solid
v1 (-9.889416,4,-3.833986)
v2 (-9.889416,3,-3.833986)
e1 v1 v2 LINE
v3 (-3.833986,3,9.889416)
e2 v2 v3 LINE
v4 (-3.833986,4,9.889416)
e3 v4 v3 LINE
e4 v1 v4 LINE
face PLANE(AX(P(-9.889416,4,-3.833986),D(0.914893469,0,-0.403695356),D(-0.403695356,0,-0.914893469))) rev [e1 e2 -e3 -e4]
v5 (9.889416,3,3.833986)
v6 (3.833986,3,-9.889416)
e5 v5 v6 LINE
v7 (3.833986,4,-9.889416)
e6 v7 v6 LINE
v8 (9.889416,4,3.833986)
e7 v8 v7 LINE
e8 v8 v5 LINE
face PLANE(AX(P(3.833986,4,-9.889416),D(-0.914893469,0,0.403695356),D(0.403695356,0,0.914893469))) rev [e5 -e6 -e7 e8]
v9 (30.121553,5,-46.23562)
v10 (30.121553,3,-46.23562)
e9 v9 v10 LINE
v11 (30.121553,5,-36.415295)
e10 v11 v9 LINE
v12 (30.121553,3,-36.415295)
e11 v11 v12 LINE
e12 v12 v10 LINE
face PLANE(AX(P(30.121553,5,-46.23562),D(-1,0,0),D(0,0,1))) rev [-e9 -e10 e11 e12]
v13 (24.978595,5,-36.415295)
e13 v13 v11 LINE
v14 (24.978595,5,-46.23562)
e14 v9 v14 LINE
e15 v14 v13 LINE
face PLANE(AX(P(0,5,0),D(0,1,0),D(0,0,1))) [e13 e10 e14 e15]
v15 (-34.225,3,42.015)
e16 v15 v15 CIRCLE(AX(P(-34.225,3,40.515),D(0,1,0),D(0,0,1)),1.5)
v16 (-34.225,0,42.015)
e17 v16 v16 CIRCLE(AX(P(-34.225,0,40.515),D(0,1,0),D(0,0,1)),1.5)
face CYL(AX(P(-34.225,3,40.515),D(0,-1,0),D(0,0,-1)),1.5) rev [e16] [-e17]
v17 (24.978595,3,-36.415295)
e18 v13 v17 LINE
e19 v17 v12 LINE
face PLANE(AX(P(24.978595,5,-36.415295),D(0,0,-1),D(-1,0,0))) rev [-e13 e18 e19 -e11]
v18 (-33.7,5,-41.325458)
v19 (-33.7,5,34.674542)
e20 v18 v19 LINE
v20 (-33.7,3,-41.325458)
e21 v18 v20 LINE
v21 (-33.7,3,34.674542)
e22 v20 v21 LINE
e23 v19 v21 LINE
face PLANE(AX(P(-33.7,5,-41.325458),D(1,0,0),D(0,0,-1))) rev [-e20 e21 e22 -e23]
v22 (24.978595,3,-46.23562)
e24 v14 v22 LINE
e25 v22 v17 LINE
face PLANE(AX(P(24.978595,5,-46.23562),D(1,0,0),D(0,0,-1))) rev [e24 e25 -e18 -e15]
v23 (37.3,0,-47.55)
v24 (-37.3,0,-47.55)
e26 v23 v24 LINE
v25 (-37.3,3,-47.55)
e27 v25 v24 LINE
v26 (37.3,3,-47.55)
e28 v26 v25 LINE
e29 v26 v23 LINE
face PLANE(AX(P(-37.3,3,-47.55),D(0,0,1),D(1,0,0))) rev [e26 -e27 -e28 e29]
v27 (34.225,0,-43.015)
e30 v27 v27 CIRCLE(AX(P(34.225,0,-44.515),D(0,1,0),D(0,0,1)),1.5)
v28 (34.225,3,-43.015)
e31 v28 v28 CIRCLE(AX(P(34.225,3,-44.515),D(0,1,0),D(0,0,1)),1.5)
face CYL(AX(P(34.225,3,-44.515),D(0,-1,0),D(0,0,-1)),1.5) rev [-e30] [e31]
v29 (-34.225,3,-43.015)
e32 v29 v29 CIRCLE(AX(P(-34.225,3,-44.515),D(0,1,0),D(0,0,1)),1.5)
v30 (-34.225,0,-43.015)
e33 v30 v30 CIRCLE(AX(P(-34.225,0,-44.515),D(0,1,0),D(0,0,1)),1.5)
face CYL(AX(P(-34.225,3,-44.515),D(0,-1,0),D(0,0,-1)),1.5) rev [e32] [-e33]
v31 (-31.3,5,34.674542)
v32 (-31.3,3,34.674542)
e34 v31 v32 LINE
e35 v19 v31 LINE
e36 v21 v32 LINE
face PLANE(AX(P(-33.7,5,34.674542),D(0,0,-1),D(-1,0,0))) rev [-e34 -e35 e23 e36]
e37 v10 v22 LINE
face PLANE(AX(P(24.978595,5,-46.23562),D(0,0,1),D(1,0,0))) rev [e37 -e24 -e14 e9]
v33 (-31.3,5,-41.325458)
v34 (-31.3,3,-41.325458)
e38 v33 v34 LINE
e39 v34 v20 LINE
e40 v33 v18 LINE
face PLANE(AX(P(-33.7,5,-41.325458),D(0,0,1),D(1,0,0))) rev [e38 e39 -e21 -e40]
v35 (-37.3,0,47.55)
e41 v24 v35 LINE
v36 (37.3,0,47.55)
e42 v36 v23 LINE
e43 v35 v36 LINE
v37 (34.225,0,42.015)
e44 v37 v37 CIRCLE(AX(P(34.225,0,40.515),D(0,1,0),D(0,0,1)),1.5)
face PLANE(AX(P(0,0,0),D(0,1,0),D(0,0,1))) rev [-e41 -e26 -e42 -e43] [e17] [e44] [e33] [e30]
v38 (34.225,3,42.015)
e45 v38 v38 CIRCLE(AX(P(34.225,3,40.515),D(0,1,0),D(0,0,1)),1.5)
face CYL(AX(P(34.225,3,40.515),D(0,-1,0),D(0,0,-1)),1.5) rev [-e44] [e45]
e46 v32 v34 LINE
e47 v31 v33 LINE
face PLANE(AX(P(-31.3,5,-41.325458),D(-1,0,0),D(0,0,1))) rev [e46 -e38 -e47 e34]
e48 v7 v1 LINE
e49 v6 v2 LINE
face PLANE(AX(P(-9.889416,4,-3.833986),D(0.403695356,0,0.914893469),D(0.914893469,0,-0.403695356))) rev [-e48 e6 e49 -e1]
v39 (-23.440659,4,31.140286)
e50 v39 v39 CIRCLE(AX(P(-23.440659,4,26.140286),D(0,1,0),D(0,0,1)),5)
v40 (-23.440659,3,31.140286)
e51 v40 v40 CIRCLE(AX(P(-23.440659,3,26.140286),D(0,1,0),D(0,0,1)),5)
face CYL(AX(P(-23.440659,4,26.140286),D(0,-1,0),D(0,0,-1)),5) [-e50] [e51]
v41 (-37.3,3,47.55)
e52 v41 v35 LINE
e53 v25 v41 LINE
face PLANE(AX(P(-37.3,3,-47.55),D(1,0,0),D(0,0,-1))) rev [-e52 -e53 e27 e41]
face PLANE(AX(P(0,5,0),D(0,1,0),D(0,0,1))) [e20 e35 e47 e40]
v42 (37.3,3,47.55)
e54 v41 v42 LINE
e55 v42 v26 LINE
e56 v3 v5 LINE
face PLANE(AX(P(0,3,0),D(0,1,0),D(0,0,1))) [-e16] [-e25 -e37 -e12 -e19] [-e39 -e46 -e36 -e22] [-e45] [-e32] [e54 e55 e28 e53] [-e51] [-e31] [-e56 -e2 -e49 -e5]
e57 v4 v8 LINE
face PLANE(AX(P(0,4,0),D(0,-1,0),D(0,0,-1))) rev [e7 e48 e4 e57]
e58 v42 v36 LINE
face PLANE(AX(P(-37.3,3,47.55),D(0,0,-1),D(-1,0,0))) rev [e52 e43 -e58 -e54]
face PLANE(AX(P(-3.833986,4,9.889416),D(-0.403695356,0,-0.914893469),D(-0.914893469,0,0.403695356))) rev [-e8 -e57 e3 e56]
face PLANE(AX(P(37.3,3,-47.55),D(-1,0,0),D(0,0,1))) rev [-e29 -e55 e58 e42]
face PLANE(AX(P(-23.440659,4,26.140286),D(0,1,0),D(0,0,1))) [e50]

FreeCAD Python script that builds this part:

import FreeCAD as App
import Part
import Sketcher

V = App.Vector

doc = App.newDocument("Part")
body = doc.addObject("PartDesign::Body", "Body")

sketch1 = doc.addObject("Sketcher::SketchObject", "Sketch")
body.addObject(sketch1)
sketch1.AttachmentSupport = (doc.XZ_Plane, [""])
sketch1.MapMode = "FlatFace"
sketch1.addGeometry(Part.LineSegment(V(-37.3, -47.55, 0), V(-37.3, 47.55, 0)), False)
sketch1.addGeometry(Part.LineSegment(V(-37.3, 47.55, 0), V(37.3, 47.55, 0)), False)
sketch1.addGeometry(Part.LineSegment(V(37.3, 47.55, 0), V(37.3, -47.55, 0)), False)
sketch1.addGeometry(Part.LineSegment(V(37.3, -47.55, 0), V(-37.3, -47.55, 0)), False)
sketch1.addGeometry(Part.Circle(V(-34.225, 40.515, 0), V(0, 0, 1), 1.5), False)
sketch1.addGeometry(Part.Circle(V(34.225, 40.515, 0), V(0, 0, 1), 1.5), False)
sketch1.addGeometry(Part.Circle(V(-34.225, -44.515, 0), V(0, 0, 1), 1.5), False)
sketch1.addGeometry(Part.Circle(V(34.225, -44.515, 0), V(0, 0, 1), 1.5), False)
sketch1.addConstraint(Sketcher.Constraint("Coincident", 0, 2, 1, 1))
sketch1.addConstraint(Sketcher.Constraint("Coincident", 1, 2, 2, 1))
sketch1.addConstraint(Sketcher.Constraint("Coincident", 2, 2, 3, 1))
sketch1.addConstraint(Sketcher.Constraint("Coincident", 3, 2, 0, 1))
sketch1.addConstraint(Sketcher.Constraint("Vertical", 0))
sketch1.addConstraint(Sketcher.Constraint("Horizontal", 1))
sketch1.addConstraint(Sketcher.Constraint("Vertical", 2))
sketch1.addConstraint(Sketcher.Constraint("Horizontal", 3))
sketch1.addConstraint(Sketcher.Constraint("Equal", 4, 5))
sketch1.addConstraint(Sketcher.Constraint("Equal", 5, 6))
sketch1.addConstraint(Sketcher.Constraint("Equal", 6, 7))
sketch1.addConstraint(Sketcher.Constraint("Symmetric", 0, 2, 2, 2, -1, 1))
sketch1.addConstraint(Sketcher.Constraint("Symmetric", 4, 3, 5, 3, -2))
sketch1.addConstraint(Sketcher.Constraint("Symmetric", 6, 3, 7, 3, -2))
sketch1.addConstraint(Sketcher.Constraint("Vertical", 4, 3, 6, 3))
sketch1.addConstraint(Sketcher.Constraint("Diameter", 4, 3.0))
sketch1.addConstraint(Sketcher.Constraint("DistanceX", 1, 1, 1, 2, 74.6))
sketch1.addConstraint(Sketcher.Constraint("DistanceY", 0, 1, 0, 2, 95.1))
sketch1.addConstraint(Sketcher.Constraint("DistanceX", 4, 3, 5, 3, 68.45))
sketch1.addConstraint(Sketcher.Constraint("DistanceY", 6, 3, 4, 3, 85.03))
sketch1.addConstraint(Sketcher.Constraint("DistanceY", -1, 1, 4, 3, 40.515))
pad1 = doc.addObject("PartDesign::Pad", "Pad")
body.addObject(pad1)
pad1.Profile = sketch1
pad1.Length = 3
pad1.Reversed = True

sketch2 = doc.addObject("Sketcher::SketchObject", "Sketch001")
body.addObject(sketch2)
sketch2.AttachmentSupport = (doc.XZ_Plane, [""])
sketch2.MapMode = "FlatFace"
sketch2.AttachmentOffset = App.Placement(V(0, 0, -3), App.Rotation())
sketch2.addGeometry(Part.LineSegment(V(-9.889416, -3.833986, 0), V(-3.833986, 9.889416, 0)), False)
sketch2.addGeometry(Part.LineSegment(V(-3.833986, 9.889416, 0), V(9.889416, 3.833986, 0)), False)
sketch2.addGeometry(Part.LineSegment(V(9.889416, 3.833986, 0), V(3.833986, -9.889416, 0)), False)
sketch2.addGeometry(Part.LineSegment(V(3.833986, -9.889416, 0), V(-9.889416, -3.833986, 0)), False)
sketch2.addConstraint(Sketcher.Constraint("Coincident", 0, 2, 1, 1))
sketch2.addConstraint(Sketcher.Constraint("Coincident", 1, 2, 2, 1))
sketch2.addConstraint(Sketcher.Constraint("Coincident", 2, 2, 3, 1))
sketch2.addConstraint(Sketcher.Constraint("Coincident", 3, 2, 0, 1))
sketch2.addConstraint(Sketcher.Constraint("Symmetric", 0, 2, 2, 2, -1, 1))
sketch2.addConstraint(Sketcher.Constraint("Symmetric", 1, 2, 3, 2, -1, 1))
sketch2.addConstraint(Sketcher.Constraint("Perpendicular", 0, 1))
sketch2.addConstraint(Sketcher.Constraint("Equal", 0, 1))
sketch2.addConstraint(Sketcher.Constraint("Distance", 0, 15.0))
sketch2.addConstraint(Sketcher.Constraint("DistanceY", 1, 2, 0, 2, 6.05543))
pad2 = doc.addObject("PartDesign::Pad", "Pad001")
body.addObject(pad2)
pad2.Profile = sketch2
pad2.Length = 1
pad2.Reversed = True

sketch3 = doc.addObject("Sketcher::SketchObject", "Sketch002")
body.addObject(sketch3)
sketch3.AttachmentSupport = (doc.XZ_Plane, [""])
sketch3.MapMode = "FlatFace"
sketch3.AttachmentOffset = App.Placement(V(0, 0, -3), App.Rotation())
sketch3.addGeometry(Part.Circle(V(-23.440659, 26.140286, 0), V(0, 0, 1), 5), False)
sketch3.addConstraint(Sketcher.Constraint("Diameter", 0, 10.0))
sketch3.addConstraint(Sketcher.Constraint("DistanceX", 0, 3, -1, 1, 23.440659))
sketch3.addConstraint(Sketcher.Constraint("DistanceY", -1, 1, 0, 3, 26.140286))
pad3 = doc.addObject("PartDesign::Pad", "Pad002")
body.addObject(pad3)
pad3.Profile = sketch3
pad3.Length = 1
pad3.Reversed = True

sketch4 = doc.addObject("Sketcher::SketchObject", "Sketch003")
body.addObject(sketch4)
sketch4.AttachmentSupport = (doc.XZ_Plane, [""])
sketch4.MapMode = "FlatFace"
sketch4.AttachmentOffset = App.Placement(V(0, 0, -3), App.Rotation())
sketch4.addGeometry(Part.LineSegment(V(-33.7, -41.325458, 0), V(-33.7, 34.674542, 0)), False)
sketch4.addGeometry(Part.LineSegment(V(-33.7, 34.674542, 0), V(-31.3, 34.674542, 0)), False)
sketch4.addGeometry(Part.LineSegment(V(-31.3, 34.674542, 0), V(-31.3, -41.325458, 0)), False)
sketch4.addGeometry(Part.LineSegment(V(-31.3, -41.325458, 0), V(-33.7, -41.325458, 0)), False)
sketch4.addGeometry(Part.LineSegment(V(24.978595, -46.23562, 0), V(24.978595, -36.415295, 0)), False)
sketch4.addGeometry(Part.LineSegment(V(24.978595, -36.415295, 0), V(30.121553, -36.415295, 0)), False)
sketch4.addGeometry(Part.LineSegment(V(30.121553, -36.415295, 0), V(30.121553, -46.23562, 0)), False)
sketch4.addGeometry(Part.LineSegment(V(30.121553, -46.23562, 0), V(24.978595, -46.23562, 0)), False)
sketch4.addConstraint(Sketcher.Constraint("Coincident", 0, 2, 1, 1))
sketch4.addConstraint(Sketcher.Constraint("Coincident", 1, 2, 2, 1))
sketch4.addConstraint(Sketcher.Constraint("Coincident", 2, 2, 3, 1))
sketch4.addConstraint(Sketcher.Constraint("Coincident", 3, 2, 0, 1))
sketch4.addConstraint(Sketcher.Constraint("Coincident", 4, 2, 5, 1))
sketch4.addConstraint(Sketcher.Constraint("Coincident", 5, 2, 6, 1))
sketch4.addConstraint(Sketcher.Constraint("Coincident", 6, 2, 7, 1))
sketch4.addConstraint(Sketcher.Constraint("Coincident", 7, 2, 4, 1))
sketch4.addConstraint(Sketcher.Constraint("Vertical", 0))
sketch4.addConstraint(Sketcher.Constraint("Horizontal", 1))
sketch4.addConstraint(Sketcher.Constraint("Vertical", 2))
sketch4.addConstraint(Sketcher.Constraint("Horizontal", 3))
sketch4.addConstraint(Sketcher.Constraint("Vertical", 4))
sketch4.addConstraint(Sketcher.Constraint("Horizontal", 5))
sketch4.addConstraint(Sketcher.Constraint("Vertical", 6))
sketch4.addConstraint(Sketcher.Constraint("Horizontal", 7))
sketch4.addConstraint(Sketcher.Constraint("DistanceY", 0, 1, 0, 2, 76.0))
sketch4.addConstraint(Sketcher.Constraint("DistanceX", 1, 1, 1, 2, 2.4))
sketch4.addConstraint(Sketcher.Constraint("DistanceX", 0, 2, -1, 1, 33.7))
sketch4.addConstraint(Sketcher.Constraint("DistanceX", 5, 1, 5, 2, 5.142958))
sketch4.addConstraint(Sketcher.Constraint("DistanceY", 4, 1, 4, 2, 9.820325))
sketch4.addConstraint(Sketcher.Constraint("DistanceY", 6, 2, -1, 1, 46.23562))
sketch4.addConstraint(Sketcher.Constraint("DistanceY", -1, 1, 0, 2, 34.674542))
sketch4.addConstraint(Sketcher.Constraint("DistanceX", -1, 1, 4, 2, 24.978595))
pad4 = doc.addObject("PartDesign::Pad", "Pad003")
body.addObject(pad4)
pad4.Profile = sketch4
pad4.Length = 2
pad4.Reversed = True

doc.recompute()
